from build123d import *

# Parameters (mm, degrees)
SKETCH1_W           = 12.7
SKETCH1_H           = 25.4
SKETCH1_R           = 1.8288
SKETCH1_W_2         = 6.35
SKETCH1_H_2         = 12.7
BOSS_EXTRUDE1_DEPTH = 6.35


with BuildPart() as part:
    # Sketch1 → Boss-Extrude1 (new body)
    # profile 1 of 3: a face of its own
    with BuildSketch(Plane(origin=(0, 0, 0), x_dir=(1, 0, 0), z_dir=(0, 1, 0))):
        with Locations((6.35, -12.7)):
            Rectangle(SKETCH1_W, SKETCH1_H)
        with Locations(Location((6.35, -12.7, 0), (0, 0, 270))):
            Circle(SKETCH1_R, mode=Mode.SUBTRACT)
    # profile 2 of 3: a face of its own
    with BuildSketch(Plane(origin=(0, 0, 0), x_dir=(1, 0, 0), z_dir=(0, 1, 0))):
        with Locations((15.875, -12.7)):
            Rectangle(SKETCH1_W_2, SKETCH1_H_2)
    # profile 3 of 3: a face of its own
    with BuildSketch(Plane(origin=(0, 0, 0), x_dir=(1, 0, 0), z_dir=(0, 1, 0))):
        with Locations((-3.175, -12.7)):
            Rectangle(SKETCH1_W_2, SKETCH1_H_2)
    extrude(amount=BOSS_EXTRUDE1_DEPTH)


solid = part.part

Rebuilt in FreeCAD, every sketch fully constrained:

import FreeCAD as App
import Part
import Sketcher
from FreeCAD import Vector
Q = App.Units.Quantity

doc = App.newDocument("Part")
body = doc.addObject("PartDesign::Body", "Body")

# Sketch on XZ plane
sketch1 = body.newObject("Sketcher::SketchObject", "Sketch")
sketch1.AttachmentSupport = (doc.getObject("XZ_Plane"), [""])
sketch1.MapMode = "FlatFace"
sketch1.addGeometry([
    Part.LineSegment(Vector(0, 19.1, 0), Vector(0, 25.4, 0)),  # 0
    Part.LineSegment(Vector(0, 25.4, 0), Vector(12.7, 25.4, 0)),  # 1
    Part.LineSegment(Vector(12.7, 25.4, 0), Vector(12.7, 19.1, 0)),  # 2
    Part.LineSegment(Vector(12.7, 19.1, 0), Vector(19.1, 19.1, 0)),  # 3
    Part.LineSegment(Vector(19.1, 19.1, 0), Vector(19.1, 6.3, 0)),  # 4
    Part.LineSegment(Vector(19.1, 6.3, 0), Vector(12.7, 6.3, 0)),  # 5
    Part.LineSegment(Vector(12.7, 6.3, 0), Vector(12.7, 0, 0)),  # 6
    Part.LineSegment(Vector(12.7, 0, 0), Vector(0, 0, 0)),  # 7
    Part.LineSegment(Vector(0, 0, 0), Vector(0, 6.3, 0)),  # 8
    Part.LineSegment(Vector(0, 6.3, 0), Vector(-6.3, 6.3, 0)),  # 9
    Part.LineSegment(Vector(-6.3, 6.3, 0), Vector(-6.3, 19.1, 0)),  # 10
    Part.LineSegment(Vector(-6.3, 19.1, 0), Vector(0, 19.1, 0)),  # 11
    Part.Circle(Vector(6.3, 12.7, 0), Vector(0, 0, 1), 1.8),  # 12
], False)
sketch1.addConstraint([
    Sketcher.Constraint("Coincident", 0, 2, 1, 1),
    Sketcher.Constraint("Coincident", 1, 2, 2, 1),
    Sketcher.Constraint("Coincident", 2, 2, 3, 1),
    Sketcher.Constraint("Coincident", 3, 2, 4, 1),
    Sketcher.Constraint("Coincident", 4, 2, 5, 1),
    Sketcher.Constraint("Coincident", 5, 2, 6, 1),
    Sketcher.Constraint("Coincident", 6, 2, 7, 1),
    Sketcher.Constraint("Coincident", 7, 2, 8, 1),
    Sketcher.Constraint("Coincident", 8, 2, 9, 1),
    Sketcher.Constraint("Coincident", 9, 2, 10, 1),
    Sketcher.Constraint("Coincident", 10, 2, 11, 1),
    Sketcher.Constraint("Coincident", 11, 2, 0, 1),
    Sketcher.Constraint("Vertical", 0),
    Sketcher.Constraint("Horizontal", 1),
    Sketcher.Constraint("Vertical", 2),
    Sketcher.Constraint("Horizontal", 3),
    Sketcher.Constraint("Vertical", 4),
    Sketcher.Constraint("Horizontal", 5),
    Sketcher.Constraint("Vertical", 6),
    Sketcher.Constraint("Horizontal", 7),
    Sketcher.Constraint("Vertical", 8),
    Sketcher.Constraint("Horizontal", 9),
    Sketcher.Constraint("Vertical", 10),
    Sketcher.Constraint("Horizontal", 11),
    Sketcher.Constraint("Coincident", 7, 2, -1, 1),
    Sketcher.Constraint("PointOnObject", 0, 2, -2),
    Sketcher.Constraint("Horizontal", 5, 2, 8, 2),
    Sketcher.Constraint("Horizontal", 3, 2, 10, 2),
    Sketcher.Constraint("Vertical", 2, 2, 5, 2),
    Sketcher.Constraint("Equal", 5, 9),
    Sketcher.Constraint("Equal", 11, 0),
    Sketcher.Constraint("Equal", 7, 4),
    Sketcher.Constraint("Equal", 2, 6),
    Sketcher.Constraint("Diameter", 12, Q("0.144 in")),
    Sketcher.Constraint("DistanceX", 1, 1, 1, 2, Q("0.5 in")),
    Sketcher.Constraint("DistanceY", -1, 1, 0, 2, Q("1 in")),
    Sketcher.Constraint("DistanceY", -1, 1, 12, 3, Q("0.5 in")),
    Sketcher.Constraint("DistanceX", 12, 3, 3, 2, Q("0.5 in")),
])
pad1 = body.newObject("PartDesign::Pad", "Pad")
pad1.Profile = sketch1
pad1.Length = Q("0.25 in")
pad1.Reversed = True

doc.recompute()
